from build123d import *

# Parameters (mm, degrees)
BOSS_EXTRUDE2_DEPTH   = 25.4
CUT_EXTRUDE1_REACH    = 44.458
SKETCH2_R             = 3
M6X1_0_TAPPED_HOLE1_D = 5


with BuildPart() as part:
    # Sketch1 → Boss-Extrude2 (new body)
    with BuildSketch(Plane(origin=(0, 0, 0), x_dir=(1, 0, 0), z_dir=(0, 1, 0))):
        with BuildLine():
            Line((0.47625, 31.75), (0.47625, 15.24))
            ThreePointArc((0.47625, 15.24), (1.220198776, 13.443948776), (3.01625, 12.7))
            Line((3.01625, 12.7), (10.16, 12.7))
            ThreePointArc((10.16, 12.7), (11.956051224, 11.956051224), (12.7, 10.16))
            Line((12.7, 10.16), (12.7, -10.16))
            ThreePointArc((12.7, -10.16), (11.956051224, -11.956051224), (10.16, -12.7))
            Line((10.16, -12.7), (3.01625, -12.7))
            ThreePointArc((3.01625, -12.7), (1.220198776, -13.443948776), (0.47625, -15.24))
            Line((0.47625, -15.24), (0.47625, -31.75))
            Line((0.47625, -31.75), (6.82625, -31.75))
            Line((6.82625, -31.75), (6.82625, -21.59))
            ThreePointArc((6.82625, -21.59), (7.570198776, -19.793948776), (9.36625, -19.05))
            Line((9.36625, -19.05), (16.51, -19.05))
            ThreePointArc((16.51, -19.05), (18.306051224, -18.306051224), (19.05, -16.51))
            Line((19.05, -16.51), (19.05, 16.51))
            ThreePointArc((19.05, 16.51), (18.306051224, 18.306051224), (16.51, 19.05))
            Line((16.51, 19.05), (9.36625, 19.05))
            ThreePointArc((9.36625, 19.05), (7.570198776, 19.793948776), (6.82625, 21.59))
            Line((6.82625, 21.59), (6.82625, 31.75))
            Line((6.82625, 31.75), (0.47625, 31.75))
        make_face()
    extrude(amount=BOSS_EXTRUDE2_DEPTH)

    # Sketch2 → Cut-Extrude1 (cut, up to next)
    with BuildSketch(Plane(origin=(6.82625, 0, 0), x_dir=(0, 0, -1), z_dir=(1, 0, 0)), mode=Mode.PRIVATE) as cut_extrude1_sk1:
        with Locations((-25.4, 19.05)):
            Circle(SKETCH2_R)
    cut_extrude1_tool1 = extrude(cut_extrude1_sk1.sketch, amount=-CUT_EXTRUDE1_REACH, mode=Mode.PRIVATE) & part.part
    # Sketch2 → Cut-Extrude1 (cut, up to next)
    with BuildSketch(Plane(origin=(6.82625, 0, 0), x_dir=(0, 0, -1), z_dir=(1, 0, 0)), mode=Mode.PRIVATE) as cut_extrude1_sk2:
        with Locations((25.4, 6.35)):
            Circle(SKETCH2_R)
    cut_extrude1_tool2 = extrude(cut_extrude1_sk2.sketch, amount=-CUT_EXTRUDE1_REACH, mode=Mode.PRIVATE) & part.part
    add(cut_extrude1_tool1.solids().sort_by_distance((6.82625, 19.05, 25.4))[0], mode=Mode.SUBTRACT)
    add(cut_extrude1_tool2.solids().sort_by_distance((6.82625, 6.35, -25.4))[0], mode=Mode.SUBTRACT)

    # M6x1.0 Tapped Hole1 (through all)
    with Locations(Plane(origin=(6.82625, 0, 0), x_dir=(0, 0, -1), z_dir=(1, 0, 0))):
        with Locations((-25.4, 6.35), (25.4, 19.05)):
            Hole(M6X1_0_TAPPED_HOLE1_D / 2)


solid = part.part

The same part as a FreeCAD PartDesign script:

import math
import FreeCAD as App
import Part
import Sketcher
from FreeCAD import Vector
Q = App.Units.Quantity

doc = App.newDocument("Part")
body = doc.addObject("PartDesign::Body", "Body")

# Sketch on XZ plane
sketch1 = body.newObject("Sketcher::SketchObject", "Sketch")
sketch1.AttachmentSupport = (doc.getObject("XZ_Plane"), [""])
sketch1.MapMode = "FlatFace"
sketch1.addGeometry(Part.LineSegment(Vector(0.5, -31.8, 0), Vector(0.5, -15.2, 0)), False)
sketch1.addGeometry(Part.ArcOfCircle(Part.Circle(Vector(3, -15.2, 0), Vector(0, 0, 1), 2.5), math.radians(90), math.radians(180)), False)
sketch1.addGeometry(Part.LineSegment(Vector(3, -12.7, 0), Vector(10.2, -12.7, 0)), False)
sketch1.addGeometry(Part.ArcOfCircle(Part.Circle(Vector(10.2, -10.2, 0), Vector(0, 0, 1), 2.5), math.radians(-90), math.radians(0)), False)
sketch1.addGeometry(Part.LineSegment(Vector(12.7, -10.2, 0), Vector(12.7, 10.2, 0)), False)
sketch1.addGeometry(Part.ArcOfCircle(Part.Circle(Vector(10.2, 10.2, 0), Vector(0, 0, 1), 2.5), math.radians(0), math.radians(90)), False)
sketch1.addGeometry(Part.LineSegment(Vector(10.2, 12.7, 0), Vector(3, 12.7, 0)), False)
sketch1.addGeometry(Part.ArcOfCircle(Part.Circle(Vector(3, 15.2, 0), Vector(0, 0, 1), 2.5), math.radians(-180), math.radians(-90)), False)
sketch1.addGeometry(Part.LineSegment(Vector(0.5, 15.2, 0), Vector(0.5, 31.8, 0)), False)
sketch1.addGeometry(Part.LineSegment(Vector(0.5, 31.8, 0), Vector(6.8, 31.8, 0)), False)
sketch1.addGeometry(Part.LineSegment(Vector(6.8, 31.8, 0), Vector(6.8, 21.6, 0)), False)
sketch1.addGeometry(Part.ArcOfCircle(Part.Circle(Vector(9.4, 21.6, 0), Vector(0, 0, 1), 2.5), math.radians(-180), math.radians(-90)), False)
sketch1.addGeometry(Part.LineSegment(Vector(9.4, 19.1, 0), Vector(16.5, 19.1, 0)), False)
sketch1.addGeometry(Part.ArcOfCircle(Part.Circle(Vector(16.5, 16.5, 0), Vector(0, 0, 1), 2.5), math.radians(0), math.radians(90)), False)
sketch1.addGeometry(Part.LineSegment(Vector(19.1, 16.5, 0), Vector(19.1, -16.5, 0)), False)
sketch1.addGeometry(Part.ArcOfCircle(Part.Circle(Vector(16.5, -16.5, 0), Vector(0, 0, 1), 2.5), math.radians(-90), math.radians(0)), False)
sketch1.addGeometry(Part.LineSegment(Vector(16.5, -19.1, 0), Vector(9.4, -19.1, 0)), False)
sketch1.addGeometry(Part.ArcOfCircle(Part.Circle(Vector(9.4, -21.6, 0), Vector(0, 0, 1), 2.5), math.radians(90), math.radians(180)), False)
sketch1.addGeometry(Part.LineSegment(Vector(6.8, -21.6, 0), Vector(6.8, -31.8, 0)), False)
sketch1.addGeometry(Part.LineSegment(Vector(6.8, -31.8, 0), Vector(0.5, -31.8, 0)), False)
sketch1.addConstraint(Sketcher.Constraint("Tangent", 0, 2, 1, 2))
sketch1.addConstraint(Sketcher.Constraint("Tangent", 1, 1, 2, 1))
sketch1.addConstraint(Sketcher.Constraint("Tangent", 2, 2, 3, 1))
sketch1.addConstraint(Sketcher.Constraint("Tangent", 3, 2, 4, 1))
sketch1.addConstraint(Sketcher.Constraint("Tangent", 4, 2, 5, 1))
sketch1.addConstraint(Sketcher.Constraint("Tangent", 5, 2, 6, 1))
sketch1.addConstraint(Sketcher.Constraint("Tangent", 6, 2, 7, 2))
sketch1.addConstraint(Sketcher.Constraint("Tangent", 7, 1, 8, 1))
sketch1.addConstraint(Sketcher.Constraint("Coincident", 8, 2, 9, 1))
sketch1.addConstraint(Sketcher.Constraint("Coincident", 9, 2, 10, 1))
sketch1.addConstraint(Sketcher.Constraint("Tangent", 10, 2, 11, 1))
sketch1.addConstraint(Sketcher.Constraint("Tangent", 11, 2, 12, 1))
sketch1.addConstraint(Sketcher.Constraint("Tangent", 12, 2, 13, 2))
sketch1.addConstraint(Sketcher.Constraint("Tangent", 13, 1, 14, 1))
sketch1.addConstraint(Sketcher.Constraint("Tangent", 14, 2, 15, 2))
sketch1.addConstraint(Sketcher.Constraint("Tangent", 15, 1, 16, 1))
sketch1.addConstraint(Sketcher.Constraint("Tangent", 16, 2, 17, 1))
sketch1.addConstraint(Sketcher.Constraint("Tangent", 17, 2, 18, 1))
sketch1.addConstraint(Sketcher.Constraint("Coincident", 18, 2, 19, 1))
sketch1.addConstraint(Sketcher.Constraint("Coincident", 19, 2, 0, 1))
sketch1.addConstraint(Sketcher.Constraint("Vertical", 0))
sketch1.addConstraint(Sketcher.Constraint("Horizontal", 2))
sketch1.addConstraint(Sketcher.Constraint("Vertical", 4))
sketch1.addConstraint(Sketcher.Constraint("Horizontal", 6))
sketch1.addConstraint(Sketcher.Constraint("Vertical", 8))
sketch1.addConstraint(Sketcher.Constraint("Horizontal", 9))
sketch1.addConstraint(Sketcher.Constraint("Vertical", 10))
sketch1.addConstraint(Sketcher.Constraint("Horizontal", 12))
sketch1.addConstraint(Sketcher.Constraint("Vertical", 14))
sketch1.addConstraint(Sketcher.Constraint("Horizontal", 16))
sketch1.addConstraint(Sketcher.Constraint("Vertical", 18))
sketch1.addConstraint(Sketcher.Constraint("Horizontal", 19))
sketch1.addConstraint(Sketcher.Constraint("Equal", 1, 3))
sketch1.addConstraint(Sketcher.Constraint("Equal", 3, 5))
sketch1.addConstraint(Sketcher.Constraint("Equal", 5, 7))
sketch1.addConstraint(Sketcher.Constraint("Equal", 7, 11))
sketch1.addConstraint(Sketcher.Constraint("Equal", 11, 13))
sketch1.addConstraint(Sketcher.Constraint("Equal", 13, 15))
sketch1.addConstraint(Sketcher.Constraint("Equal", 15, 17))
sketch1.addConstraint(Sketcher.Constraint("Symmetric", 1, 3, 7, 3, -1))
sketch1.addConstraint(Sketcher.Constraint("Symmetric", 11, 3, 17, 3, -1))
sketch1.addConstraint(Sketcher.Constraint("Equal", 6, 12))
sketch1.addConstraint(Sketcher.Constraint("Equal", 0, 8))
sketch1.addConstraint(Sketcher.Constraint("Radius", 1, Q("0.1 in")))
sketch1.addConstraint(Sketcher.Constraint("DistanceY", 4, 1, 4, 2, Q("0.8 in")))
sketch1.addConstraint(Sketcher.Constraint("DistanceY", 10, 2, 10, 1, Q("0.4 in")))
sketch1.addConstraint(Sketcher.Constraint("DistanceY", 14, 2, 14, 1, Q("1.3 in")))
sketch1.addConstraint(Sketcher.Constraint("DistanceX", 9, 1, 9, 2, Q("0.25 in")))
sketch1.addConstraint(Sketcher.Constraint("DistanceX", -1, 1, 3, 3, Q("0.4 in")))
sketch1.addConstraint(Sketcher.Constraint("DistanceX", 2, 1, 2, 2, Q("0.28125 in")))
pad1 = body.newObject("PartDesign::Pad", "Pad")
pad1.Profile = sketch1
pad1.Length = Q("1 in")
pad1.Reversed = True

# Sketch on YZ plane
sketch2 = body.newObject("Sketcher::SketchObject", "Sketch001")
sketch2.AttachmentSupport = (doc.getObject("YZ_Plane"), [""])
sketch2.MapMode = "FlatFace"
sketch2.AttachmentOffset = App.Placement(Vector(0, 0, 6.82625), App.Rotation())
sketch2.addGeometry(Part.Circle(Vector(19.1, 25.4, 0), Vector(0, 0, 1), 3), False)
sketch2.addConstraint(Sketcher.Constraint("DistanceY", -1, 1, 0, 3, Q("1 in")))
sketch2.addConstraint(Sketcher.Constraint("Diameter", 0, 6.0))
sketch2.addConstraint(Sketcher.Constraint("DistanceX", -1, 1, 0, 3, Q("0.75 in")))
pocket1 = body.newObject("PartDesign::Pocket", "Pocket")
pocket1.Profile = sketch2
pocket1.Type = "UpToFirst"

# Sketch on YZ plane
sketch3 = body.newObject("Sketcher::SketchObject", "Sketch002")
sketch3.AttachmentSupport = (doc.getObject("YZ_Plane"), [""])
sketch3.MapMode = "FlatFace"
sketch3.AttachmentOffset = App.Placement(Vector(0, 0, 6.82625), App.Rotation())
sketch3.addGeometry(Part.Circle(Vector(6.3, -25.4, 0), Vector(0, 0, 1), 3), False)
sketch3.addConstraint(Sketcher.Constraint("DistanceY", 0, 3, -1, 1, Q("1 in")))
sketch3.addConstraint(Sketcher.Constraint("Diameter", 0, 6.0))
sketch3.addConstraint(Sketcher.Constraint("DistanceX", -1, 1, 0, 3, Q("0.25 in")))
pocket2 = body.newObject("PartDesign::Pocket", "Pocket001")
pocket2.Profile = sketch3
pocket2.Type = "UpToFirst"

# Sketch on YZ plane
sketch4 = body.newObject("Sketcher::SketchObject", "Sketch003")
sketch4.AttachmentSupport = (doc.getObject("YZ_Plane"), [""])
sketch4.MapMode = "FlatFace"
sketch4.AttachmentOffset = App.Placement(Vector(0, 0, 6.82625), App.Rotation())
sketch4.addGeometry(Part.Circle(Vector(6.3, 25.4, 0), Vector(0, 0, 1), 2.5), False)
sketch4.addGeometry(Part.Circle(Vector(19.1, -25.4, 0), Vector(0, 0, 1), 2.5), False)
sketch4.addConstraint(Sketcher.Constraint("Equal", 0, 1))
sketch4.addConstraint(Sketcher.Constraint("DistanceY", -1, 1, 0, 3, Q("1 in")))
sketch4.addConstraint(Sketcher.Constraint("DistanceY", 1, 3, -1, 1, Q("1 in")))
sketch4.addConstraint(Sketcher.Constraint("DistanceX", 0, 3, 1, 3, Q("0.5 in")))
sketch4.addConstraint(Sketcher.Constraint("Diameter", 0, 5.0))
sketch4.addConstraint(Sketcher.Constraint("DistanceX", -1, 1, 0, 3, Q("0.25 in")))
doc.recompute()
hole = body.newObject("PartDesign::Hole", "Hole")
hole.Profile = sketch4
hole.ThreadType = "None"
hole.Diameter = 5
hole.DepthType = "ThroughAll"

doc.recompute()
